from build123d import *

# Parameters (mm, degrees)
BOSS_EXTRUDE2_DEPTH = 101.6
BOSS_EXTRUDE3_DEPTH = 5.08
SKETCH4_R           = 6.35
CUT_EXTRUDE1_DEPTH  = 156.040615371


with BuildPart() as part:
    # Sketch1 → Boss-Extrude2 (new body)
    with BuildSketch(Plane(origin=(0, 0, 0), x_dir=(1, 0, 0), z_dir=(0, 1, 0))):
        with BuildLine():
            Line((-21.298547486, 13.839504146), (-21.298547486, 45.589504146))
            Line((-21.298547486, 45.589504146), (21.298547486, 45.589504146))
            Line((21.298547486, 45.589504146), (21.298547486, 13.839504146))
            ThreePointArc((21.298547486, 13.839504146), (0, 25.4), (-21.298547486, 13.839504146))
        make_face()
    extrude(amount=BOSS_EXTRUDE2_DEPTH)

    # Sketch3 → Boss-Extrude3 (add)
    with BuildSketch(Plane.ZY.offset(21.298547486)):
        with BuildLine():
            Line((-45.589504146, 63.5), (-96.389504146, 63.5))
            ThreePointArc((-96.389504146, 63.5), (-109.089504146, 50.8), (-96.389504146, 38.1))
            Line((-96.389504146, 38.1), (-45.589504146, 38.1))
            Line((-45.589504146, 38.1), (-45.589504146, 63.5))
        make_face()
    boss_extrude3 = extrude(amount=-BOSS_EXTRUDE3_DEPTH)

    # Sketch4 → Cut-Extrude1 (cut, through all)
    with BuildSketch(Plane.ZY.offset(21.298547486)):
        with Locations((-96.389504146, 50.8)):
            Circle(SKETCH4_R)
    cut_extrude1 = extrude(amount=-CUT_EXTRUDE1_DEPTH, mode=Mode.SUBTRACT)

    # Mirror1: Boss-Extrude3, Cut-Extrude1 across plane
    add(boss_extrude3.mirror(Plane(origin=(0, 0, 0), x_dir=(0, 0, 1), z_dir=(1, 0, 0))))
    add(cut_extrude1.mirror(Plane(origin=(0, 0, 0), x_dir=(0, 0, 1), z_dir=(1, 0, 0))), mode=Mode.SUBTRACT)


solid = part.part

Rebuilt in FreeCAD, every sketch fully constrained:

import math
import FreeCAD as App
import Part
import Sketcher
from FreeCAD import Vector
Q = App.Units.Quantity

doc = App.newDocument("Part")
body = doc.addObject("PartDesign::Body", "Body")

# Sketch on XZ plane
sketch1 = body.newObject("Sketcher::SketchObject", "Sketch")
sketch1.AttachmentSupport = (doc.getObject("XZ_Plane"), [""])
sketch1.MapMode = "FlatFace"
sketch1.addGeometry([
    Part.LineSegment(Vector(-21, -46, 0), Vector(-21, -14, 0)),
    Part.ArcOfCircle(Part.Circle(Vector(0, 0, 0), Vector(0, 0, 1), 25), math.radians(-147), math.radians(-33)),
    Part.LineSegment(Vector(21, -14, 0), Vector(21, -46, 0)),
    Part.LineSegment(Vector(21, -46, 0), Vector(-21, -46, 0)),
], False)
sketch1.addConstraint([
    Sketcher.Constraint("Coincident", 0, 2, 1, 1),
    Sketcher.Constraint("Coincident", 1, 2, 2, 1),
    Sketcher.Constraint("Coincident", 2, 2, 3, 1),
    Sketcher.Constraint("Coincident", 3, 2, 0, 1),
    Sketcher.Constraint("Vertical", 0),
    Sketcher.Constraint("Vertical", 2),
    Sketcher.Constraint("Horizontal", 3),
    Sketcher.Constraint("Coincident", 1, 3, -1, 1),
    Sketcher.Constraint("Horizontal", 0, 2, 1, 2),
    Sketcher.Constraint("Radius", 1, Q("1 in")),
    Sketcher.Constraint("DistanceY", 0, 1, 0, 2, Q("1.25 in")),
    Sketcher.Constraint("DistanceX", 3, 2, 3, 1, Q("42.597095 mm")),
])
pad1 = body.newObject("PartDesign::Pad", "Pad")
pad1.Profile = sketch1
pad1.Length = Q("4 in")
pad1.Reversed = True

# Sketch on YZ plane
sketch2 = body.newObject("Sketcher::SketchObject", "Sketch001")
sketch2.AttachmentSupport = (doc.getObject("YZ_Plane"), [""])
sketch2.MapMode = "FlatFace"
sketch2.AttachmentOffset = App.Placement(Vector(0, 0, -21.298547), App.Rotation())
sketch2.addGeometry([
    Part.LineSegment(Vector(64, -46, 0), Vector(64, -96, 0)),
    Part.ArcOfCircle(Part.Circle(Vector(51, -96, 0), Vector(0, 0, 1), 13), math.radians(180), math.radians(360)),
    Part.LineSegment(Vector(38, -96, 0), Vector(38, -46, 0)),
    Part.LineSegment(Vector(38, -46, 0), Vector(64, -46, 0)),
], False)
sketch2.addConstraint([
    Sketcher.Constraint("Tangent", 0, 2, 1, 2),
    Sketcher.Constraint("Tangent", 1, 1, 2, 1),
    Sketcher.Constraint("Coincident", 2, 2, 3, 1),
    Sketcher.Constraint("Coincident", 3, 2, 0, 1),
    Sketcher.Constraint("Vertical", 0),
    Sketcher.Constraint("Vertical", 2),
    Sketcher.Constraint("Horizontal", 3),
    Sketcher.Constraint("Radius", 1, Q("0.5 in")),
    Sketcher.Constraint("DistanceY", 0, 2, 0, 1, Q("2 in")),
    Sketcher.Constraint("DistanceX", -1, 1, 1, 3, Q("2 in")),
    Sketcher.Constraint("DistanceY", 1, 3, -1, 1, Q("96.389504 mm")),
])
pad2 = body.newObject("PartDesign::Pad", "Pad001")
pad2.Profile = sketch2
pad2.Length = Q("0.2 in")

# Sketch on YZ plane
sketch3 = body.newObject("Sketcher::SketchObject", "Sketch002")
sketch3.AttachmentSupport = (doc.getObject("YZ_Plane"), [""])
sketch3.MapMode = "FlatFace"
sketch3.AttachmentOffset = App.Placement(Vector(0, 0, -21.298547), App.Rotation())
sketch3.addGeometry(Part.Circle(Vector(51, -96, 0), Vector(0, 0, 1), 6), False)
sketch3.addConstraint([
    Sketcher.Constraint("Diameter", 0, Q("0.5 in")),
    Sketcher.Constraint("DistanceX", -1, 1, 0, 3, Q("2 in")),
    Sketcher.Constraint("DistanceY", 0, 3, -1, 1, Q("96.389504 mm")),
])
pocket1 = body.newObject("PartDesign::Pocket", "Pocket")
pocket1.Profile = sketch3
pocket1.Type = "ThroughAll"
pocket1.Reversed = True
doc.recompute()

mirrored = body.newObject("PartDesign::Mirrored", "Mirrored")
mirrored.Originals = [pad2, pocket1]
mirrored.MirrorPlane = (doc.getObject("YZ_Plane"), [""])
body.Tip = mirrored

doc.recompute()
